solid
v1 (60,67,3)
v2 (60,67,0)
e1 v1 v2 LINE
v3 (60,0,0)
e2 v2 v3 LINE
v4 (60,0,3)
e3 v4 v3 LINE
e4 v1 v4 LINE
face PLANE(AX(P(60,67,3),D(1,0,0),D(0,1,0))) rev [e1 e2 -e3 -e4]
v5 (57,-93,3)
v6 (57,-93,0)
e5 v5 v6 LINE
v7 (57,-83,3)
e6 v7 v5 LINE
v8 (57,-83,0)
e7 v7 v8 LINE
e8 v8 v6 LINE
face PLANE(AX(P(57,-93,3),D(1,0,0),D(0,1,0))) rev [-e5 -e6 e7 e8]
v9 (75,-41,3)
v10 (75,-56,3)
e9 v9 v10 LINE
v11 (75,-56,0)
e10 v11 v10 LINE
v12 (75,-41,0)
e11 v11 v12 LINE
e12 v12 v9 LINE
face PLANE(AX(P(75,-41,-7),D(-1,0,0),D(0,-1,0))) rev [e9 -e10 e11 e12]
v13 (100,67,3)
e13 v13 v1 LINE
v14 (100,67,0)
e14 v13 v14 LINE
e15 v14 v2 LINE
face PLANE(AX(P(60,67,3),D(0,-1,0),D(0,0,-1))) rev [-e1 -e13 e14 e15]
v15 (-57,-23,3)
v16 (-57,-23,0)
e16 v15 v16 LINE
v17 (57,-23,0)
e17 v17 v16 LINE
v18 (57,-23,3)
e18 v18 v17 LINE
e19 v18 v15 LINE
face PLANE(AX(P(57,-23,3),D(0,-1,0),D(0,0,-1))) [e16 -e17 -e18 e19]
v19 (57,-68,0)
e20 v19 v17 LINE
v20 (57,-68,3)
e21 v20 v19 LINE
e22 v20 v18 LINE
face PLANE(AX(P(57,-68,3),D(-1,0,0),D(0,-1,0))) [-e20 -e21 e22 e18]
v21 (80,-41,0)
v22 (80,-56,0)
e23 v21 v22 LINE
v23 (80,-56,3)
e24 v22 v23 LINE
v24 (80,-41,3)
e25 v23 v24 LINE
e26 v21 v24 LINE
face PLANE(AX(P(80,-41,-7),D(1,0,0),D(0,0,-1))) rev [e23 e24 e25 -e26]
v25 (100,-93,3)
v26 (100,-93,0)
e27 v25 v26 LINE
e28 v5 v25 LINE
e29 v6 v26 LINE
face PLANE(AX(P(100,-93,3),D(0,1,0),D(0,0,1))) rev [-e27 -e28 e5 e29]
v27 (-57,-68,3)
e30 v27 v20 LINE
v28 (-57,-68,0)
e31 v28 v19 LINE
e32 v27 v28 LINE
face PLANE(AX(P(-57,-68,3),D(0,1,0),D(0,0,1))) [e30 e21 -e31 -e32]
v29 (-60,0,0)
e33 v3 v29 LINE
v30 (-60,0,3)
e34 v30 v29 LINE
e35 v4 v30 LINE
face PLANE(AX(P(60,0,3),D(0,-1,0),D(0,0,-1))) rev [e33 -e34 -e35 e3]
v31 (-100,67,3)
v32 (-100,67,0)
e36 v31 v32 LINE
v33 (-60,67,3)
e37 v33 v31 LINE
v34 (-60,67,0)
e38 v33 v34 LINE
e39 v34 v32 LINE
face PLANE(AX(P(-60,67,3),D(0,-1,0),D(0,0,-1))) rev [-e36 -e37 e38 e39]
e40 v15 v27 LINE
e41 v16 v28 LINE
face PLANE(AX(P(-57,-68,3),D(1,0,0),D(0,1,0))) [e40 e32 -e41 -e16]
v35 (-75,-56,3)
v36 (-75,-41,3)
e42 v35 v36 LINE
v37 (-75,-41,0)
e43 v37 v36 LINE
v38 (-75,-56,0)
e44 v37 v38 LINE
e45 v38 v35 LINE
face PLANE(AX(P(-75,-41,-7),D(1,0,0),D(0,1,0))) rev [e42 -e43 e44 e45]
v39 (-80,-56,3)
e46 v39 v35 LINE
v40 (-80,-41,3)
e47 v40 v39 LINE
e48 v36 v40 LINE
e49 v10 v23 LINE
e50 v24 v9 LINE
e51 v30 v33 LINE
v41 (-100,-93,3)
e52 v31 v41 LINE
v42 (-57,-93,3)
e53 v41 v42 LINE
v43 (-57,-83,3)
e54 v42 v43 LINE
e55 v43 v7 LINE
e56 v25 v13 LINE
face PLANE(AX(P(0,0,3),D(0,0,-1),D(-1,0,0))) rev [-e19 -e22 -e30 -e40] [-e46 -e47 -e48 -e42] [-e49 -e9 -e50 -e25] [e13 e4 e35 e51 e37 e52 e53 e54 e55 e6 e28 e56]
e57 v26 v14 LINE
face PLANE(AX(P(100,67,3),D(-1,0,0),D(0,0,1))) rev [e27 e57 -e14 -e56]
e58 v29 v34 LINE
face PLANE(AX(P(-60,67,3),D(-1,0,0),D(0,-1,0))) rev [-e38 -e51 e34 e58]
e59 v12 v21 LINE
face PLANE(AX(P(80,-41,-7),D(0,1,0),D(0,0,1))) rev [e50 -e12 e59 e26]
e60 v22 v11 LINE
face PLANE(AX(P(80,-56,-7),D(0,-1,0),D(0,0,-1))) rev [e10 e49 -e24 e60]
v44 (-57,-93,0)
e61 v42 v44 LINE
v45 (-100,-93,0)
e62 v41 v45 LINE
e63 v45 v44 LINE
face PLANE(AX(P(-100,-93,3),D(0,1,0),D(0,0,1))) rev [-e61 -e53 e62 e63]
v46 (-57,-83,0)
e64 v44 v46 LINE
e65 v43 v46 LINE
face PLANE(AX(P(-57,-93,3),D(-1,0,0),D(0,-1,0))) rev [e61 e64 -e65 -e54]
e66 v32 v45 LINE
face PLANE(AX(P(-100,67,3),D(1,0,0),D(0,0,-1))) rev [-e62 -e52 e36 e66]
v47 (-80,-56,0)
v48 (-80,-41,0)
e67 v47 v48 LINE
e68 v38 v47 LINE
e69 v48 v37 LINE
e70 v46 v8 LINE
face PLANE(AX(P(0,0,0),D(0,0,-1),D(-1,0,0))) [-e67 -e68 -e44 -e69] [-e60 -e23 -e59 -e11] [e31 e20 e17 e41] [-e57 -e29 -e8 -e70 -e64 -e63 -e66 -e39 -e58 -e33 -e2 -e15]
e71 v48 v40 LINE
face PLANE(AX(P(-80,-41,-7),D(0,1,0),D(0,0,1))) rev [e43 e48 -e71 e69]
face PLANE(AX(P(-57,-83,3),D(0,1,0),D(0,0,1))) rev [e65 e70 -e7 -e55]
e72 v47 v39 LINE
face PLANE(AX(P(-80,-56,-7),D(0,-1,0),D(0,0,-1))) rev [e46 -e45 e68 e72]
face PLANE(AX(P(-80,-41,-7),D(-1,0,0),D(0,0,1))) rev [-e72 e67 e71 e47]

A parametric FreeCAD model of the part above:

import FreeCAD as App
import Part
import Sketcher

V = App.Vector
Q = App.Units.Quantity

doc = App.newDocument("Part")
body = doc.addObject("PartDesign::Body", "Body")

# Sketch on XY plane
sketch1 = body.newObject("Sketcher::SketchObject", "Sketch")
sketch1.AttachmentSupport = (doc.getObject("XY_Plane"), [""])
sketch1.MapMode = "FlatFace"
sketch1.addGeometry([
    Part.LineSegment(V(60, 67, 0), V(60, 0, 0)),  # 0
    Part.LineSegment(V(60, 0, 0), V(-60, 0, 0)),  # 1
    Part.LineSegment(V(-60, 0, 0), V(-60, 67, 0)),  # 2
    Part.LineSegment(V(-60, 67, 0), V(-100, 67, 0)),  # 3
    Part.LineSegment(V(-100, 67, 0), V(-100, -93, 0)),  # 4
    Part.LineSegment(V(-100, -93, 0), V(-57, -93, 0)),  # 5
    Part.LineSegment(V(-57, -93, 0), V(-57, -83, 0)),  # 6
    Part.LineSegment(V(-57, -83, 0), V(57, -83, 0)),  # 7
    Part.LineSegment(V(57, -83, 0), V(57, -93, 0)),  # 8
    Part.LineSegment(V(57, -93, 0), V(100, -93, 0)),  # 9
    Part.LineSegment(V(100, -93, 0), V(100, 67, 0)),  # 10
    Part.LineSegment(V(100, 67, 0), V(60, 67, 0)),  # 11
    Part.LineSegment(V(57, -68, 0), V(-57, -68, 0)),  # 12
    Part.LineSegment(V(-57, -68, 0), V(-57, -23, 0)),  # 13
    Part.LineSegment(V(-57, -23, 0), V(57, -23, 0)),  # 14
    Part.LineSegment(V(57, -23, 0), V(57, -68, 0)),  # 15
], False)
sketch1.addConstraint([
    Sketcher.Constraint("Coincident", 0, 2, 1, 1),
    Sketcher.Constraint("Coincident", 1, 2, 2, 1),
    Sketcher.Constraint("Coincident", 2, 2, 3, 1),
    Sketcher.Constraint("Coincident", 3, 2, 4, 1),
    Sketcher.Constraint("Coincident", 4, 2, 5, 1),
    Sketcher.Constraint("Coincident", 5, 2, 6, 1),
    Sketcher.Constraint("Coincident", 6, 2, 7, 1),
    Sketcher.Constraint("Coincident", 7, 2, 8, 1),
    Sketcher.Constraint("Coincident", 8, 2, 9, 1),
    Sketcher.Constraint("Coincident", 9, 2, 10, 1),
    Sketcher.Constraint("Coincident", 10, 2, 11, 1),
    Sketcher.Constraint("Coincident", 11, 2, 0, 1),
    Sketcher.Constraint("Coincident", 12, 2, 13, 1),
    Sketcher.Constraint("Coincident", 13, 2, 14, 1),
    Sketcher.Constraint("Coincident", 14, 2, 15, 1),
    Sketcher.Constraint("Coincident", 15, 2, 12, 1),
    Sketcher.Constraint("Vertical", 0),
    Sketcher.Constraint("Horizontal", 1),
    Sketcher.Constraint("Vertical", 2),
    Sketcher.Constraint("Horizontal", 3),
    Sketcher.Constraint("Vertical", 4),
    Sketcher.Constraint("Horizontal", 5),
    Sketcher.Constraint("Vertical", 6),
    Sketcher.Constraint("Horizontal", 7),
    Sketcher.Constraint("Vertical", 8),
    Sketcher.Constraint("Horizontal", 9),
    Sketcher.Constraint("Vertical", 10),
    Sketcher.Constraint("Horizontal", 11),
    Sketcher.Constraint("Horizontal", 12),
    Sketcher.Constraint("Vertical", 13),
    Sketcher.Constraint("Horizontal", 14),
    Sketcher.Constraint("Vertical", 15),
    Sketcher.Constraint("Symmetric", 0, 2, 1, 2, -1, 1),
    Sketcher.Constraint("Symmetric", 5, 2, 8, 2, -2),
    Sketcher.Constraint("Symmetric", 3, 2, 10, 2, -2),
    Sketcher.Constraint("Vertical", 6, 2, 12, 2),
    Sketcher.Constraint("Vertical", 8, 2, 14, 2),
    Sketcher.Constraint("DistanceX", 1, 2, 1, 1, Q("120 mm")),
    Sketcher.Constraint("DistanceX", 3, 2, 3, 1, Q("40 mm")),
    Sketcher.Constraint("DistanceX", 5, 1, 5, 2, Q("43 mm")),
    Sketcher.Constraint("DistanceY", 0, 2, 0, 1, Q("67 mm")),
    Sketcher.Constraint("DistanceY", 4, 2, 4, 1, Q("160 mm")),
    Sketcher.Constraint("DistanceY", 6, 1, 6, 2, Q("10 mm")),
    Sketcher.Constraint("DistanceY", 13, 1, 13, 2, Q("45 mm")),
    Sketcher.Constraint("DistanceY", 12, 2, -1, 1, Q("68 mm")),
])
pad1 = body.newObject("PartDesign::Pad", "Pad")
pad1.Profile = sketch1
pad1.Length = 3

# Sketch on XY plane
sketch2 = body.newObject("Sketcher::SketchObject", "Sketch001")
sketch2.AttachmentSupport = (doc.getObject("XY_Plane"), [""])
sketch2.MapMode = "FlatFace"
sketch2.AttachmentOffset = App.Placement(V(0, 0, 3), App.Rotation())
sketch2.addGeometry([
    Part.LineSegment(V(-80, -41, 0), V(-80, -56, 0)),  # 0
    Part.LineSegment(V(-80, -56, 0), V(-75, -56, 0)),  # 1
    Part.LineSegment(V(-75, -56, 0), V(-75, -41, 0)),  # 2
    Part.LineSegment(V(-75, -41, 0), V(-80, -41, 0)),  # 3
    Part.LineSegment(V(75, -41, 0), V(75, -56, 0)),  # 4
    Part.LineSegment(V(75, -56, 0), V(80, -56, 0)),  # 5
    Part.LineSegment(V(80, -56, 0), V(80, -41, 0)),  # 6
    Part.LineSegment(V(80, -41, 0), V(75, -41, 0)),  # 7
], False)
sketch2.addConstraint([
    Sketcher.Constraint("Coincident", 0, 2, 1, 1),
    Sketcher.Constraint("Coincident", 1, 2, 2, 1),
    Sketcher.Constraint("Coincident", 2, 2, 3, 1),
    Sketcher.Constraint("Coincident", 3, 2, 0, 1),
    Sketcher.Constraint("Coincident", 4, 2, 5, 1),
    Sketcher.Constraint("Coincident", 5, 2, 6, 1),
    Sketcher.Constraint("Coincident", 6, 2, 7, 1),
    Sketcher.Constraint("Coincident", 7, 2, 4, 1),
    Sketcher.Constraint("Vertical", 0),
    Sketcher.Constraint("Horizontal", 1),
    Sketcher.Constraint("Vertical", 2),
    Sketcher.Constraint("Horizontal", 3),
    Sketcher.Constraint("Vertical", 4),
    Sketcher.Constraint("Horizontal", 5),
    Sketcher.Constraint("Vertical", 6),
    Sketcher.Constraint("Horizontal", 7),
    Sketcher.Constraint("Symmetric", 1, 2, 4, 2, -2),
    Sketcher.Constraint("Symmetric", 3, 2, 6, 2, -2),
    Sketcher.Constraint("DistanceX", 1, 1, 1, 2, Q("5 mm")),
    Sketcher.Constraint("DistanceY", 0, 2, 0, 1, Q("15 mm")),
    Sketcher.Constraint("DistanceX", 0, 2, -1, 1, Q("80 mm")),
    Sketcher.Constraint("DistanceY", 0, 2, -1, 1, Q("56 mm")),
])
pocket1 = body.newObject("PartDesign::Pocket", "Pocket")
pocket1.Profile = sketch2
pocket1.Length = 10

doc.recompute()
